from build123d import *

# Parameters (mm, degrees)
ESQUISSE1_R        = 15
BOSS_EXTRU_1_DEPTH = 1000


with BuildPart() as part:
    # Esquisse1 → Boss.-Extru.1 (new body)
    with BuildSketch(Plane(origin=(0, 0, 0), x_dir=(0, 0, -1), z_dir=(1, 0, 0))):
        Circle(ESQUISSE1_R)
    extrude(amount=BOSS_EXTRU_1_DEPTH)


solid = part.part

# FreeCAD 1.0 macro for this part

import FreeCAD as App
import Part
import Sketcher

V = App.Vector

doc = App.newDocument("Part")
body = doc.addObject("PartDesign::Body", "Body")

# Sketch on YZ plane
sketch1 = doc.addObject("Sketcher::SketchObject", "Sketch")
body.addObject(sketch1)
sketch1.AttachmentSupport = (doc.YZ_Plane, [""])
sketch1.MapMode = "FlatFace"
sketch1.addGeometry(Part.Circle(V(0, 0, 0), V(0, 0, 1), 15), False)
sketch1.addConstraint([
    Sketcher.Constraint("Coincident", 0, 3, -1, 1),
    Sketcher.Constraint("Diameter", 0, 30.0),
])
pad1 = doc.addObject("PartDesign::Pad", "Pad")
body.addObject(pad1)
pad1.Profile = sketch1
pad1.Length = 1000

doc.recompute()
